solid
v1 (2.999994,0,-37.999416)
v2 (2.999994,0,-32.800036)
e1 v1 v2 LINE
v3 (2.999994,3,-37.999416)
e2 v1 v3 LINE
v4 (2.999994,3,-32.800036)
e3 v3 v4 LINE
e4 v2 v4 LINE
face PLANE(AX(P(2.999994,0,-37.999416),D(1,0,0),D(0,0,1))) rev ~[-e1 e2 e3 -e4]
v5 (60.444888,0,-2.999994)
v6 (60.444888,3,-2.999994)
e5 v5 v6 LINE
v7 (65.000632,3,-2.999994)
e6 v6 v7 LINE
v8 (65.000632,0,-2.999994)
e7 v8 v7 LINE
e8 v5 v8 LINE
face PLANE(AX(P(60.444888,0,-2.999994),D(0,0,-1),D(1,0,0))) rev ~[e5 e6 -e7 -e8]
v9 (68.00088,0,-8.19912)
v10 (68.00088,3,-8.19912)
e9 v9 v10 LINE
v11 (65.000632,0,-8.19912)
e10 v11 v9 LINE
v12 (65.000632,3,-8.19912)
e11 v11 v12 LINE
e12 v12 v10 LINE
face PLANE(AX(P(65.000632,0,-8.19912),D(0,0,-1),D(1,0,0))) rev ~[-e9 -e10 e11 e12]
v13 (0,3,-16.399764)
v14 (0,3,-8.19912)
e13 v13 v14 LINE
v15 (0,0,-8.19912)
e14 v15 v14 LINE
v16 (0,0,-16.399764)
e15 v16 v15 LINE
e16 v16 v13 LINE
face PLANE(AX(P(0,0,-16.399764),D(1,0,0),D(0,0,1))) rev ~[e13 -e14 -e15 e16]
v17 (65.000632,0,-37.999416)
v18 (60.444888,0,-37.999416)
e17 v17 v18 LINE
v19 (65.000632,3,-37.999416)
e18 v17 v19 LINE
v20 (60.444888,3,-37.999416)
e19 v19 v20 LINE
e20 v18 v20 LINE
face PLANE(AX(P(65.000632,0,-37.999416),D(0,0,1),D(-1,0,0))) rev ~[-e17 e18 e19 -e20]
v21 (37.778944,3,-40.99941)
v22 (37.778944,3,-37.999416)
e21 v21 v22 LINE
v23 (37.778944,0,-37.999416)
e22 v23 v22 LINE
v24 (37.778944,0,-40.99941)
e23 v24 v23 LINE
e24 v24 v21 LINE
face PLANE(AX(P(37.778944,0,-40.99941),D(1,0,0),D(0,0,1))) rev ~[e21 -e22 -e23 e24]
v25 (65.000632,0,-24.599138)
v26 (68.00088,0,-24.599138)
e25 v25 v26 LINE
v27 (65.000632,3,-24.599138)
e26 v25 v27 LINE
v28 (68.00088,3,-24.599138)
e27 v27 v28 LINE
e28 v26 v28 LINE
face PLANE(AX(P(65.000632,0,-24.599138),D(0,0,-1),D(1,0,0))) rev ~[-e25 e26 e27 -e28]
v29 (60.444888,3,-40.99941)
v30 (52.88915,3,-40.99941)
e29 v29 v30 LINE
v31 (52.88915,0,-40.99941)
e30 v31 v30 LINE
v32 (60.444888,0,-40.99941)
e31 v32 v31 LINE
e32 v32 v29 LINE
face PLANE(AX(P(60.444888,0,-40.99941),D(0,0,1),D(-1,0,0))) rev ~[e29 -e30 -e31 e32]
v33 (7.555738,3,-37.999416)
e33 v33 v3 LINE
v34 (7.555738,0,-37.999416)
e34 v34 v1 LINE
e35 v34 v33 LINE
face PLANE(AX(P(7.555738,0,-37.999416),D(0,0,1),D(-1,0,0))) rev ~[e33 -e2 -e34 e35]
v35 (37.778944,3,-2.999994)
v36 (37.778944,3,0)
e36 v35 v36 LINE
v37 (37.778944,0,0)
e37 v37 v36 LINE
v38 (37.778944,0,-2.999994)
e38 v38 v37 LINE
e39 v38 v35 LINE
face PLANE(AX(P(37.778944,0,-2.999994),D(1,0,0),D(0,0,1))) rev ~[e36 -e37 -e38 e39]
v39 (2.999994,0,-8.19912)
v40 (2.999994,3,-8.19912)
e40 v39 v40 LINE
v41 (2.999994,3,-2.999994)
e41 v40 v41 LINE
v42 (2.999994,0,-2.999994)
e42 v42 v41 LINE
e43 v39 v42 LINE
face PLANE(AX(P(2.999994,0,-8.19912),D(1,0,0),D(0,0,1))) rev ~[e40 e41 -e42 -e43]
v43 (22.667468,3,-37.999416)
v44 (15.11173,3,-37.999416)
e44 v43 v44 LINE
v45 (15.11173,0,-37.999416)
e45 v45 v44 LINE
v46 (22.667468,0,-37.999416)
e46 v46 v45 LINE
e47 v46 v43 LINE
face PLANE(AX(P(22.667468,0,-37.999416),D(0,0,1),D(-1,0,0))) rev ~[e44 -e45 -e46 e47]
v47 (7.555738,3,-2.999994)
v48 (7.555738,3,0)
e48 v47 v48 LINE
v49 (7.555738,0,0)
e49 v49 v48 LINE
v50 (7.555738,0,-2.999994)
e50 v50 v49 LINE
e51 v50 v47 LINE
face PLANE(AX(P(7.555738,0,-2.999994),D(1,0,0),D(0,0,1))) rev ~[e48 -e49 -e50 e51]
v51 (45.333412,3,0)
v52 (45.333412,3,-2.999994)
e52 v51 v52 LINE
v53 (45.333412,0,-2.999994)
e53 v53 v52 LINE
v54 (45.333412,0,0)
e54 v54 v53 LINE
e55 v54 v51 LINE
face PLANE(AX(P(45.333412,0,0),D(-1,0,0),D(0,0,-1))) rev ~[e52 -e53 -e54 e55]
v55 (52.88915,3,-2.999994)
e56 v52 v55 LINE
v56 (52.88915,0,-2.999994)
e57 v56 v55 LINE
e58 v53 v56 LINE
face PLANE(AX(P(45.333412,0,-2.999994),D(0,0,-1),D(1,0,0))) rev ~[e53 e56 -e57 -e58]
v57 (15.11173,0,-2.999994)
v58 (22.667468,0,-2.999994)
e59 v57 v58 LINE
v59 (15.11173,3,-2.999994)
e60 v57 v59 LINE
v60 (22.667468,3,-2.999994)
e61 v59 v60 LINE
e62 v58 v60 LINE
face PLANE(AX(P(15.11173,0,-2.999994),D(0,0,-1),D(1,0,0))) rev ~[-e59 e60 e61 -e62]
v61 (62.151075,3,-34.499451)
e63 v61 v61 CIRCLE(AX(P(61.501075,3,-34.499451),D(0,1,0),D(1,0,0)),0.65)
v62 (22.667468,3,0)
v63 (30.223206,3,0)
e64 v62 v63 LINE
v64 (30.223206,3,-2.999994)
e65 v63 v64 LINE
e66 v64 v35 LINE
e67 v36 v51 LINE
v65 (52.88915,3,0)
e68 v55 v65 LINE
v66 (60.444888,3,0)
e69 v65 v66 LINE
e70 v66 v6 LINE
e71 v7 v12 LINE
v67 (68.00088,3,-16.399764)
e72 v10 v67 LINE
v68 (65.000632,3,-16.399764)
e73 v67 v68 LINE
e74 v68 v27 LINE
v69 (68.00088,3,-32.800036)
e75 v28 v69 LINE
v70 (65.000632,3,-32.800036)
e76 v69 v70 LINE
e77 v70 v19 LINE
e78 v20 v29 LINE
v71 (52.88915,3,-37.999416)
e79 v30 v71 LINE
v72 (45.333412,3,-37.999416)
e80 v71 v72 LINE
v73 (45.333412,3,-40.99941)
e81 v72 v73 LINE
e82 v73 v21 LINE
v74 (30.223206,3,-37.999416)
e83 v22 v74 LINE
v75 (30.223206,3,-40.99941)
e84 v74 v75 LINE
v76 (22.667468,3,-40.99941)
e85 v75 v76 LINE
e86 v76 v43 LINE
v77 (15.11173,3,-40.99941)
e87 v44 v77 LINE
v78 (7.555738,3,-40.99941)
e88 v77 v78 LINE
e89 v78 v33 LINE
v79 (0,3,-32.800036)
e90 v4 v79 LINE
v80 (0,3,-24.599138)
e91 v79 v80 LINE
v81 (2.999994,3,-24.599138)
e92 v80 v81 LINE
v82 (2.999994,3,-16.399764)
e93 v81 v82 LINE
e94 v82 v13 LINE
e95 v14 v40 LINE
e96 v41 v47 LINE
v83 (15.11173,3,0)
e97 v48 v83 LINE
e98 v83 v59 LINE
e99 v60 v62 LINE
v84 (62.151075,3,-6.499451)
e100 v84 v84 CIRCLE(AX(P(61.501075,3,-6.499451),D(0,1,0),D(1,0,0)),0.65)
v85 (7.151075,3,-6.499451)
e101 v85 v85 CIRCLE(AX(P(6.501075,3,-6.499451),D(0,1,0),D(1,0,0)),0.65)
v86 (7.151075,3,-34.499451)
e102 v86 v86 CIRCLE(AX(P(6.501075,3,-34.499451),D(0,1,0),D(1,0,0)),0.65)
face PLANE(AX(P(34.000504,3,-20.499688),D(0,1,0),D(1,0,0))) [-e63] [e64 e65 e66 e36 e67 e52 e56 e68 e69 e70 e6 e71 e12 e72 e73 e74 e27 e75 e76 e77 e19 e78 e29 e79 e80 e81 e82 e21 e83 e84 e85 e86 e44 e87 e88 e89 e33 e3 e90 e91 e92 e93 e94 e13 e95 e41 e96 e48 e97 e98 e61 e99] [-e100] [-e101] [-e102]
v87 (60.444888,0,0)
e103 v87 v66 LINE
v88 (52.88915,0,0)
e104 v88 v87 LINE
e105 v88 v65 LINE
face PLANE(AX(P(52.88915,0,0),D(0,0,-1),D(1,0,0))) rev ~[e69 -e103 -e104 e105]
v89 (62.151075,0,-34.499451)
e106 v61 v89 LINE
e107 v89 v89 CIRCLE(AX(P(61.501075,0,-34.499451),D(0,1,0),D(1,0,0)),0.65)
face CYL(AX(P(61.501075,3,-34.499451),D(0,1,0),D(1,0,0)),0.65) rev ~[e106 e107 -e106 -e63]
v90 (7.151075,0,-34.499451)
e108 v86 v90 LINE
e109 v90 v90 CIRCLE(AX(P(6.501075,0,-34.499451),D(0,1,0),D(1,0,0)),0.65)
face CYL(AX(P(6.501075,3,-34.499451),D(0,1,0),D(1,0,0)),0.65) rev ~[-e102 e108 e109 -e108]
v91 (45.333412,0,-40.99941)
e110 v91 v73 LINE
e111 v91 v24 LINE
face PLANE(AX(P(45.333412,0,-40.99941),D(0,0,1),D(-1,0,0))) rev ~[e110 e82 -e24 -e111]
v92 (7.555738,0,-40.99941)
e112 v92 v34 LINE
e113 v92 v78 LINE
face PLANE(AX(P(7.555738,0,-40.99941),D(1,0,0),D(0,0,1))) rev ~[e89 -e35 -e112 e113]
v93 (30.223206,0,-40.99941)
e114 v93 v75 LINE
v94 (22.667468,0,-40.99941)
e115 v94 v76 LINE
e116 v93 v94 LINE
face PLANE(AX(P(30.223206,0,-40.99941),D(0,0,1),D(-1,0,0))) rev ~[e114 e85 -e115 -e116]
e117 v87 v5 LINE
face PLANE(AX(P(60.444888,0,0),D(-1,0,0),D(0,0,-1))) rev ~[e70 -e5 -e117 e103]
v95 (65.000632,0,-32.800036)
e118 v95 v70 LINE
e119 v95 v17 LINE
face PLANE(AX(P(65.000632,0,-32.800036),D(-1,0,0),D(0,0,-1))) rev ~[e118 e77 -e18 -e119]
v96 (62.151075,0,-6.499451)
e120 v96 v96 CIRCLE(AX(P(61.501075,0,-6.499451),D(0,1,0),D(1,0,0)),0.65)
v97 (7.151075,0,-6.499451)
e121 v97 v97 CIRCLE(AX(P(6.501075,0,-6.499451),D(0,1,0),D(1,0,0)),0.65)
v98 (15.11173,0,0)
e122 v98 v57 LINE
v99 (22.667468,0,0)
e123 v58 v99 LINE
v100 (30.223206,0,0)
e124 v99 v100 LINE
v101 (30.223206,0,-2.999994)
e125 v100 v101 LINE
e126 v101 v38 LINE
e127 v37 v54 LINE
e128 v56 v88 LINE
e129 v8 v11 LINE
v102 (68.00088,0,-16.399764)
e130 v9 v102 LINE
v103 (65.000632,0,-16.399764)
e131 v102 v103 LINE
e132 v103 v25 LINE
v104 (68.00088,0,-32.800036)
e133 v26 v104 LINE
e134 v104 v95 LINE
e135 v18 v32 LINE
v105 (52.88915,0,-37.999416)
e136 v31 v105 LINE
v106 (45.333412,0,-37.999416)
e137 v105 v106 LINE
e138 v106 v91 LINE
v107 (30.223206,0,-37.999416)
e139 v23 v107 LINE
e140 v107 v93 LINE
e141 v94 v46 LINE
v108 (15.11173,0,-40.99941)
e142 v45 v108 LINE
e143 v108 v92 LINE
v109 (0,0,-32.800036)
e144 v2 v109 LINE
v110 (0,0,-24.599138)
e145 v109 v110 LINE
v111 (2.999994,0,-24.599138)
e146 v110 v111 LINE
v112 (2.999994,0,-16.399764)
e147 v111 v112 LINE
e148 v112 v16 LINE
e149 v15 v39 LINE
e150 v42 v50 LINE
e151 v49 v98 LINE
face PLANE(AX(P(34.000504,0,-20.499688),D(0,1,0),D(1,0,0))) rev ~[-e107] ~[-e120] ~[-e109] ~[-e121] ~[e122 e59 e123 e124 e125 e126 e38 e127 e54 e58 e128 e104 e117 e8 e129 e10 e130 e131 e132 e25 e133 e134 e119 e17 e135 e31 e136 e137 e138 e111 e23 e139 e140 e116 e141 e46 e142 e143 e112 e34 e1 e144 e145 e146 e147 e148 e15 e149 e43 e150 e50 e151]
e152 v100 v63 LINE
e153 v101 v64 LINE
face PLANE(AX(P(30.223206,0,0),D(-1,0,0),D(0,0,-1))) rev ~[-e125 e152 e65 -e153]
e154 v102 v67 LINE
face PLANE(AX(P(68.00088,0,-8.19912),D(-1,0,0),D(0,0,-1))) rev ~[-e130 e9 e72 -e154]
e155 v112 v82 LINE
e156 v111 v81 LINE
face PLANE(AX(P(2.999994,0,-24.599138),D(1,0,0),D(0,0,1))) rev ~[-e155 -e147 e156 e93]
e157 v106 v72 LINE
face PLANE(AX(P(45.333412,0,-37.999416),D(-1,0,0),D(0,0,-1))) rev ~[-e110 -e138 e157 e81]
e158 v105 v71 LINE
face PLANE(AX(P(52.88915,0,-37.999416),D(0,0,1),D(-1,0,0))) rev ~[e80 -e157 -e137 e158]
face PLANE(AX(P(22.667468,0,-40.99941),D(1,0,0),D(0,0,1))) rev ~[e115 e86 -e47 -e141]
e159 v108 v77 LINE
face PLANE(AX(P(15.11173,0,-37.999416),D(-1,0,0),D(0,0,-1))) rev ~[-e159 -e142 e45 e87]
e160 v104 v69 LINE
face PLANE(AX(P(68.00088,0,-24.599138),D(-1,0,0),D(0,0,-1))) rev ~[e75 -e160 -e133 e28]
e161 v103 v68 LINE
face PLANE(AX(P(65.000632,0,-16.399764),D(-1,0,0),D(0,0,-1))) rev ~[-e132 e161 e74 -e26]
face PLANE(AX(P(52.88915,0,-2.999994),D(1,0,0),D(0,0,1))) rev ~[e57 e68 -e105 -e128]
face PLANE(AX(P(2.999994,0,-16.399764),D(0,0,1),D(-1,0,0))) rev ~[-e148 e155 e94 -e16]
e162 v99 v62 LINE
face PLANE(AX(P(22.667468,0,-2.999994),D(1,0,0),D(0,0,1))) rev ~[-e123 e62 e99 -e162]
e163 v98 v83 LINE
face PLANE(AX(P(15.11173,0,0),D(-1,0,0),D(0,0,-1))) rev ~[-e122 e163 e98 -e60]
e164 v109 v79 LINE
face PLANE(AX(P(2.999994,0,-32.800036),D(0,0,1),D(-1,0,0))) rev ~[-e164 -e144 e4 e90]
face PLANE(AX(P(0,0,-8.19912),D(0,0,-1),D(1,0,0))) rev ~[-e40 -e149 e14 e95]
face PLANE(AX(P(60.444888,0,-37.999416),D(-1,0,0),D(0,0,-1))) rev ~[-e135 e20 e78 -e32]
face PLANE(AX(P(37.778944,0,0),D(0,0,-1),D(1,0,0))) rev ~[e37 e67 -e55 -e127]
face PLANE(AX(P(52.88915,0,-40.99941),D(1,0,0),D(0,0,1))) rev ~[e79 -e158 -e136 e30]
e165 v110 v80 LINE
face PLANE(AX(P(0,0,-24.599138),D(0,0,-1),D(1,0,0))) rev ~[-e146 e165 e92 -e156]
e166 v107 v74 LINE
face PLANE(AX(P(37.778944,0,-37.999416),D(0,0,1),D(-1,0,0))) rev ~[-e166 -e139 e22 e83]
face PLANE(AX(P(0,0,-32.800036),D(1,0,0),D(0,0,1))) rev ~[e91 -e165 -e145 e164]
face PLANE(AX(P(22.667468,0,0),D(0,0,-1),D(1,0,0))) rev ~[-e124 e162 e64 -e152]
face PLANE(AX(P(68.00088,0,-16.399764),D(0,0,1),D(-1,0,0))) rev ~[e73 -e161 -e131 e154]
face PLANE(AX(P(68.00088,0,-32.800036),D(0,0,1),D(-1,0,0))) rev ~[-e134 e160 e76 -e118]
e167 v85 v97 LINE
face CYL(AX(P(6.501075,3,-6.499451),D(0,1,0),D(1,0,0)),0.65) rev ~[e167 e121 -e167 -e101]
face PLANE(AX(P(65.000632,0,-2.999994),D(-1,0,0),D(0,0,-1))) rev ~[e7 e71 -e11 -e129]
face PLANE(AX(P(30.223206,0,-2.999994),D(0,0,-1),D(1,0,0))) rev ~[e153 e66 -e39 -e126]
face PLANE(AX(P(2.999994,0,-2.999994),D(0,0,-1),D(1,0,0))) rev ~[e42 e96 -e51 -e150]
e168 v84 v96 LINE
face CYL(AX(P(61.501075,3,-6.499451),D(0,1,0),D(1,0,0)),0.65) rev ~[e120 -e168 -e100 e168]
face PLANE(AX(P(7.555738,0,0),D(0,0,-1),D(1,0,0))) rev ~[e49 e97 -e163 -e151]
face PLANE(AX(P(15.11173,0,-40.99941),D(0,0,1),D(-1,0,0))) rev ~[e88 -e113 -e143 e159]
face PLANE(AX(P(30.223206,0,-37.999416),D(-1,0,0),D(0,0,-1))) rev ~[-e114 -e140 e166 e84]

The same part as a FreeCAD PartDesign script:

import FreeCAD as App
import Part
import Sketcher
from FreeCAD import Vector
Q = App.Units.Quantity


def add_polygon(sketch, points):
    """Adds a closed chain of lines whose ends are joined by coincident constraints."""
    first, n = sketch.GeometryCount, len(points)
    for a, b in zip(points, points[1:] + points[:1]):
        sketch.addGeometry(Part.LineSegment(App.Vector(*a, 0), App.Vector(*b, 0)), False)
    for i in range(n):
        sketch.addConstraint(Sketcher.Constraint("Coincident", first + i, 2, first + (i + 1) % n, 1))

doc = App.newDocument("Part")
body = doc.addObject("PartDesign::Body", "Body")

sketch1 = body.newObject("Sketcher::SketchObject", "Sketch")
sketch1.AttachmentSupport = (doc.getObject("XZ_Plane"), [""])
sketch1.MapMode = "FlatFace"
add_polygon(sketch1, [(3, -38), (3, -32.8), (0, -32.8), (0, -24.6), (3, -24.6), (3, -16.4), (0, -16.4), (0, -8.2), (3, -8.2), (3, -3), (7.6, -3), (7.6, 0), (15.1, 0), (15.1, -3), (22.7, -3), (22.7, 0), (30.2, 0), (30.2, -3), (37.8, -3), (37.8, 0), (45.3, 0), (45.3, -3), (52.9, -3), (52.9, 0), (60.4, 0), (60.4, -3), (65, -3), (65, -8.2), (68, -8.2), (68, -16.4), (65, -16.4), (65, -24.6), (68, -24.6), (68, -32.8), (65, -32.8), (65, -38), (60.4, -38), (60.4, -41), (52.9, -41), (52.9, -38), (45.3, -38), (45.3, -41), (37.8, -41), (37.8, -38), (30.2, -38), (30.2, -41), (22.7, -41), (22.7, -38), (15.1, -38), (15.1, -41), (7.6, -41), (7.6, -38)])
sketch1.addConstraint([
    Sketcher.Constraint("Vertical", 0),
    Sketcher.Constraint("Horizontal", 1),
    Sketcher.Constraint("Vertical", 2),
    Sketcher.Constraint("Horizontal", 3),
    Sketcher.Constraint("Vertical", 4),
    Sketcher.Constraint("Horizontal", 5),
    Sketcher.Constraint("Vertical", 6),
    Sketcher.Constraint("Horizontal", 7),
    Sketcher.Constraint("Vertical", 8),
    Sketcher.Constraint("Horizontal", 9),
    Sketcher.Constraint("Vertical", 10),
    Sketcher.Constraint("Horizontal", 11),
    Sketcher.Constraint("Vertical", 12),
    Sketcher.Constraint("Horizontal", 13),
    Sketcher.Constraint("Vertical", 14),
    Sketcher.Constraint("Horizontal", 15),
    Sketcher.Constraint("Vertical", 16),
    Sketcher.Constraint("Horizontal", 17),
    Sketcher.Constraint("Vertical", 18),
    Sketcher.Constraint("Horizontal", 19),
    Sketcher.Constraint("Vertical", 20),
    Sketcher.Constraint("Horizontal", 21),
    Sketcher.Constraint("Vertical", 22),
    Sketcher.Constraint("Horizontal", 23),
    Sketcher.Constraint("Vertical", 24),
    Sketcher.Constraint("Horizontal", 25),
    Sketcher.Constraint("Vertical", 26),
    Sketcher.Constraint("Horizontal", 27),
    Sketcher.Constraint("Vertical", 28),
    Sketcher.Constraint("Horizontal", 29),
    Sketcher.Constraint("Vertical", 30),
    Sketcher.Constraint("Horizontal", 31),
    Sketcher.Constraint("Vertical", 32),
    Sketcher.Constraint("Horizontal", 33),
    Sketcher.Constraint("Vertical", 34),
    Sketcher.Constraint("Horizontal", 35),
    Sketcher.Constraint("Vertical", 36),
    Sketcher.Constraint("Horizontal", 37),
    Sketcher.Constraint("Vertical", 38),
    Sketcher.Constraint("Horizontal", 39),
    Sketcher.Constraint("Vertical", 40),
    Sketcher.Constraint("Horizontal", 41),
    Sketcher.Constraint("Vertical", 42),
    Sketcher.Constraint("Horizontal", 43),
    Sketcher.Constraint("Vertical", 44),
    Sketcher.Constraint("Horizontal", 45),
    Sketcher.Constraint("Vertical", 46),
    Sketcher.Constraint("Horizontal", 47),
    Sketcher.Constraint("Vertical", 48),
    Sketcher.Constraint("Horizontal", 49),
    Sketcher.Constraint("Vertical", 50),
    Sketcher.Constraint("Horizontal", 51),
    Sketcher.Constraint("PointOnObject", 1, 2, -2),
    Sketcher.Constraint("PointOnObject", 5, 2, -2),
    Sketcher.Constraint("PointOnObject", 10, 2, -1),
    Sketcher.Constraint("PointOnObject", 14, 2, -1),
    Sketcher.Constraint("PointOnObject", 18, 2, -1),
    Sketcher.Constraint("PointOnObject", 22, 2, -1),
    Sketcher.Constraint("Horizontal", 9, 2, 12, 2),
    Sketcher.Constraint("Horizontal", 13, 2, 16, 2),
    Sketcher.Constraint("Horizontal", 17, 2, 20, 2),
    Sketcher.Constraint("Horizontal", 21, 2, 24, 2),
    Sketcher.Constraint("Horizontal", 7, 2, 26, 2),
    Sketcher.Constraint("Horizontal", 5, 2, 28, 2),
    Sketcher.Constraint("Horizontal", 3, 2, 30, 2),
    Sketcher.Constraint("Horizontal", 1, 2, 32, 2),
    Sketcher.Constraint("Horizontal", 35, 2, 38, 2),
    Sketcher.Constraint("Horizontal", 37, 2, 40, 2),
    Sketcher.Constraint("Horizontal", 39, 2, 42, 2),
    Sketcher.Constraint("Horizontal", 41, 2, 44, 2),
    Sketcher.Constraint("Horizontal", 43, 2, 46, 2),
    Sketcher.Constraint("Horizontal", 45, 2, 48, 2),
    Sketcher.Constraint("Horizontal", 47, 2, 50, 2),
    Sketcher.Constraint("Vertical", 0, 2, 3, 2),
    Sketcher.Constraint("Vertical", 4, 2, 7, 2),
    Sketcher.Constraint("Vertical", 26, 2, 29, 2),
    Sketcher.Constraint("Vertical", 28, 2, 31, 2),
    Sketcher.Constraint("Vertical", 30, 2, 33, 2),
    Sketcher.Constraint("Vertical", 24, 2, 35, 2),
    Sketcher.Constraint("Vertical", 22, 2, 37, 2),
    Sketcher.Constraint("Vertical", 20, 2, 39, 2),
    Sketcher.Constraint("Vertical", 18, 2, 41, 2),
    Sketcher.Constraint("Vertical", 16, 2, 43, 2),
    Sketcher.Constraint("Vertical", 14, 2, 45, 2),
    Sketcher.Constraint("Vertical", 12, 2, 47, 2),
    Sketcher.Constraint("Vertical", 10, 2, 49, 2),
    Sketcher.Constraint("Equal", 13, 15),
    Sketcher.Constraint("Equal", 15, 17),
    Sketcher.Constraint("Equal", 17, 21),
    Sketcher.Constraint("Equal", 21, 23),
    Sketcher.Constraint("Equal", 9, 25),
    Sketcher.Constraint("Equal", 7, 10),
    Sketcher.Constraint("Equal", 24, 36),
    Sketcher.Constraint("DistanceX", 11, 1, 11, 2, Q("7.555992 mm")),
    Sketcher.Constraint("DistanceX", 15, 1, 15, 2, Q("7.555738 mm")),
    Sketcher.Constraint("DistanceY", 0, 1, 0, 2, Q("5.19938 mm")),
    Sketcher.Constraint("DistanceX", 1, 2, 1, 1, Q("2.999994 mm")),
    Sketcher.Constraint("DistanceX", 9, 1, 9, 2, Q("4.555744 mm")),
    Sketcher.Constraint("DistanceX", 19, 1, 19, 2, Q("7.554468 mm")),
    Sketcher.Constraint("DistanceX", 27, 1, 27, 2, Q("3.000248 mm")),
    Sketcher.Constraint("DistanceY", 2, 1, 2, 2, Q("8.200898 mm")),
    Sketcher.Constraint("DistanceY", 4, 1, 4, 2, Q("8.199374 mm")),
    Sketcher.Constraint("DistanceY", 6, 1, 6, 2, Q("8.200644 mm")),
    Sketcher.Constraint("DistanceY", 8, 1, 8, 2, Q("5.199126 mm")),
])
pad1 = body.newObject("PartDesign::Pad", "Pad")
pad1.Profile = sketch1
pad1.Length = 3
pad1.Reversed = True

sketch2 = body.newObject("Sketcher::SketchObject", "Sketch001")
sketch2.AttachmentSupport = (doc.getObject("XZ_Plane"), [""])
sketch2.MapMode = "FlatFace"
sketch2.AttachmentOffset = App.Placement(Vector(0, 0, -3), App.Rotation())
sketch2.addGeometry(Part.Circle(Vector(6.5, -34.5, 0), Vector(0, 0, 1), 0.7), False)
sketch2.addConstraint([
    Sketcher.Constraint("Diameter", 0, Q("1.3 mm")),
    Sketcher.Constraint("DistanceY", 0, 3, -1, 1, Q("34.499451 mm")),
    Sketcher.Constraint("DistanceX", -1, 1, 0, 3, Q("6.501075 mm")),
])
pocket1 = body.newObject("PartDesign::Pocket", "Pocket")
pocket1.Profile = sketch2
pocket1.Type = "UpToFirst"
pocket1.Reversed = True

sketch3 = body.newObject("Sketcher::SketchObject", "Sketch002")
sketch3.AttachmentSupport = (doc.getObject("XZ_Plane"), [""])
sketch3.MapMode = "FlatFace"
sketch3.AttachmentOffset = App.Placement(Vector(0, 0, -3), App.Rotation())
sketch3.addGeometry(Part.Circle(Vector(61.5, -34.5, 0), Vector(0, 0, 1), 0.7), False)
sketch3.addConstraint([
    Sketcher.Constraint("Diameter", 0, Q("1.3 mm")),
    Sketcher.Constraint("DistanceY", 0, 3, -1, 1, Q("34.499451 mm")),
    Sketcher.Constraint("DistanceX", -1, 1, 0, 3, Q("61.501075 mm")),
])
pocket2 = body.newObject("PartDesign::Pocket", "Pocket001")
pocket2.Profile = sketch3
pocket2.Type = "UpToFirst"
pocket2.Reversed = True

sketch4 = body.newObject("Sketcher::SketchObject", "Sketch003")
sketch4.AttachmentSupport = (doc.getObject("XZ_Plane"), [""])
sketch4.MapMode = "FlatFace"
sketch4.AttachmentOffset = App.Placement(Vector(0, 0, -3), App.Rotation())
sketch4.addGeometry(Part.Circle(Vector(61.5, -6.5, 0), Vector(0, 0, 1), 0.7), False)
sketch4.addConstraint([
    Sketcher.Constraint("Diameter", 0, Q("1.3 mm")),
    Sketcher.Constraint("DistanceY", 0, 3, -1, 1, Q("6.499451 mm")),
    Sketcher.Constraint("DistanceX", -1, 1, 0, 3, Q("61.501075 mm")),
])
pocket3 = body.newObject("PartDesign::Pocket", "Pocket002")
pocket3.Profile = sketch4
pocket3.Type = "UpToFirst"
pocket3.Reversed = True

sketch5 = body.newObject("Sketcher::SketchObject", "Sketch004")
sketch5.AttachmentSupport = (doc.getObject("XZ_Plane"), [""])
sketch5.MapMode = "FlatFace"
sketch5.AttachmentOffset = App.Placement(Vector(0, 0, -3), App.Rotation())
sketch5.addGeometry(Part.Circle(Vector(6.5, -6.5, 0), Vector(0, 0, 1), 0.7), False)
sketch5.addConstraint([
    Sketcher.Constraint("Diameter", 0, Q("1.3 mm")),
    Sketcher.Constraint("DistanceY", 0, 3, -1, 1, Q("6.499451 mm")),
    Sketcher.Constraint("DistanceX", -1, 1, 0, 3, Q("6.501075 mm")),
])
pocket4 = body.newObject("PartDesign::Pocket", "Pocket003")
pocket4.Profile = sketch5
pocket4.Type = "UpToFirst"
pocket4.Reversed = True

doc.recompute()
